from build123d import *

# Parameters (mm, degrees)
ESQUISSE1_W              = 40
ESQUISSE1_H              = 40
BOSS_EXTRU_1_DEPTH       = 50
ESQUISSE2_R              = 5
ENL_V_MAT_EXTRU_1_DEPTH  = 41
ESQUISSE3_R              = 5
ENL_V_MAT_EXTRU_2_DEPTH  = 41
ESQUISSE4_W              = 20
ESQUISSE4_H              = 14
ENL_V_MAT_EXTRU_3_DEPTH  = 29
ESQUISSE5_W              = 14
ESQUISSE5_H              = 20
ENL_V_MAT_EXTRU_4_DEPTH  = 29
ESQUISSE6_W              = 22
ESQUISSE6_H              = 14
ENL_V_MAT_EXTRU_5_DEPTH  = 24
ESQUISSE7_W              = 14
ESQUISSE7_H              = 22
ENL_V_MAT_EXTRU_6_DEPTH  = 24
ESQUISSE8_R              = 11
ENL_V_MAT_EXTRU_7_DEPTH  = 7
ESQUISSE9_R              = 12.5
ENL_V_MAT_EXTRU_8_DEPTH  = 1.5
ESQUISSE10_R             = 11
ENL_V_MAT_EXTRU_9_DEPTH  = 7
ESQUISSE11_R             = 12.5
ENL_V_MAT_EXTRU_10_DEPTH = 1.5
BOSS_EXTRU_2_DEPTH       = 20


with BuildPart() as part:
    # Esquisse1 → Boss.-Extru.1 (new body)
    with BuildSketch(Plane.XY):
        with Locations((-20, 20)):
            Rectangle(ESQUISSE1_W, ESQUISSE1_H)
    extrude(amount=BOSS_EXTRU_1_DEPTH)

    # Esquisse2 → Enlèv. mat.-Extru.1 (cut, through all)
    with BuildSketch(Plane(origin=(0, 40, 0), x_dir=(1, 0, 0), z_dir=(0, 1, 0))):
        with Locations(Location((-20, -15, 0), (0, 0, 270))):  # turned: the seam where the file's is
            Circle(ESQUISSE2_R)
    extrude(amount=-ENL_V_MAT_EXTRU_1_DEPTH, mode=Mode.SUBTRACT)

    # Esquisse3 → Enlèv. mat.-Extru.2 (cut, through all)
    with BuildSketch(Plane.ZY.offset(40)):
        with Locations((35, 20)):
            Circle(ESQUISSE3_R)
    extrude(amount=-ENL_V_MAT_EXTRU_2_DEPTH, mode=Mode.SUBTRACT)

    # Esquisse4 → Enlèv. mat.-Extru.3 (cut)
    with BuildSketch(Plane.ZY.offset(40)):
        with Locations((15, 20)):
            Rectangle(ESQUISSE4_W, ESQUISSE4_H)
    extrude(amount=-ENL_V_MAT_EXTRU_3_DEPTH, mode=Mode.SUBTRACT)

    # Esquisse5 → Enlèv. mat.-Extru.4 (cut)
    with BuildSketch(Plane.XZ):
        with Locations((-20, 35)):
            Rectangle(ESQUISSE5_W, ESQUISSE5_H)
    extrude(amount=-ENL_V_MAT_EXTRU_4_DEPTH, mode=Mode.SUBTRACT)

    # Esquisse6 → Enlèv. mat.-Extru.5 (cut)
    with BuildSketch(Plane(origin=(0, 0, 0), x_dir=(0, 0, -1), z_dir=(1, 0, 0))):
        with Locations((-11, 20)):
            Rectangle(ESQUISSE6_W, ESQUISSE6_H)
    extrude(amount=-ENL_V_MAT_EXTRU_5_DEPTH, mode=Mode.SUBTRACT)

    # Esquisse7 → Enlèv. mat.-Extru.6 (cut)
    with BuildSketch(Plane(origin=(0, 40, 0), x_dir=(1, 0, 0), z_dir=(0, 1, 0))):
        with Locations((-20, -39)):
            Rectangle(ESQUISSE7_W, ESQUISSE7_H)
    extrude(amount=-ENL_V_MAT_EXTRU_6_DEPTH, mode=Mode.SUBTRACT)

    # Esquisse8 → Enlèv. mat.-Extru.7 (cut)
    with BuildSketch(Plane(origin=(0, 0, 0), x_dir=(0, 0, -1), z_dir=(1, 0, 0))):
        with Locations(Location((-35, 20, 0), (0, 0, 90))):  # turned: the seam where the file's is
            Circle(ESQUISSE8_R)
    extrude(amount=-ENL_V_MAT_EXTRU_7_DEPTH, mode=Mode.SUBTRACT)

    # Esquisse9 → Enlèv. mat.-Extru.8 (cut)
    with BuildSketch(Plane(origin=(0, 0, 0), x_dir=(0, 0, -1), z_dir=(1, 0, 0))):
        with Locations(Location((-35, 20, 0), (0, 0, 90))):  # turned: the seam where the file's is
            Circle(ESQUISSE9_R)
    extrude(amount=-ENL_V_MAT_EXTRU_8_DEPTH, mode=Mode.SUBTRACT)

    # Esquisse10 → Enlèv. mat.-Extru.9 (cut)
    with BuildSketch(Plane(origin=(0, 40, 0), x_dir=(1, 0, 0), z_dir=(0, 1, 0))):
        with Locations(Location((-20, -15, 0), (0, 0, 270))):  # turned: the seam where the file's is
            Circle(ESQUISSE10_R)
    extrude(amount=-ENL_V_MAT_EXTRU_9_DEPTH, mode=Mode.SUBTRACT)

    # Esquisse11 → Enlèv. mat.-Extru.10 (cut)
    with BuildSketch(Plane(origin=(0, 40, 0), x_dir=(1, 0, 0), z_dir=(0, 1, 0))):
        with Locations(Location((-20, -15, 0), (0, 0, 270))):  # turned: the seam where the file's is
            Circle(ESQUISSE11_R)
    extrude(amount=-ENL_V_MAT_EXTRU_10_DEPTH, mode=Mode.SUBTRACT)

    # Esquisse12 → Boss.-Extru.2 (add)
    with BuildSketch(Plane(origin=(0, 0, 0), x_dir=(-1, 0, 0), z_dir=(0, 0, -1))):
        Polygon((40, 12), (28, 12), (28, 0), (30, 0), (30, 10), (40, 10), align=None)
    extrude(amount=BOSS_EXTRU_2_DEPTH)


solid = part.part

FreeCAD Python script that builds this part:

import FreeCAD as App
import Part
import Sketcher

V = App.Vector
Q = App.Units.Quantity


def add_polygon(sketch, points):
    """Adds a closed chain of lines whose ends are joined by coincident constraints."""
    first, n = sketch.GeometryCount, len(points)
    for a, b in zip(points, points[1:] + points[:1]):
        sketch.addGeometry(Part.LineSegment(App.Vector(*a, 0), App.Vector(*b, 0)), False)
    for i in range(n):
        sketch.addConstraint(Sketcher.Constraint("Coincident", first + i, 2, first + (i + 1) % n, 1))

doc = App.newDocument("Part")
body = doc.addObject("PartDesign::Body", "Body")

sketch1 = body.newObject("Sketcher::SketchObject", "Sketch")
sketch1.AttachmentSupport = (doc.getObject("XY_Plane"), [""])
sketch1.MapMode = "FlatFace"
add_polygon(sketch1, [(-40, 40), (-40, 0), (0, 0), (0, 40)])
sketch1.addConstraint([
    Sketcher.Constraint("Vertical", 0),
    Sketcher.Constraint("Horizontal", 1),
    Sketcher.Constraint("Vertical", 2),
    Sketcher.Constraint("Horizontal", 3),
    Sketcher.Constraint("Coincident", 1, 2, -1, 1),
    Sketcher.Constraint("Equal", 3, 0),
    Sketcher.Constraint("DistanceX", 1, 1, 1, 2, Q("40 mm")),
])
pad1 = body.newObject("PartDesign::Pad", "Pad")
pad1.Profile = sketch1
pad1.Length = 50

sketch2 = body.newObject("Sketcher::SketchObject", "Sketch001")
sketch2.AttachmentSupport = (doc.getObject("XZ_Plane"), [""])
sketch2.MapMode = "FlatFace"
sketch2.AttachmentOffset = App.Placement(V(0, 0, -40), App.Rotation())
sketch2.addGeometry(Part.Circle(V(-20, 15, 0), V(0, 0, 1), 5), False)
sketch2.addConstraint([
    Sketcher.Constraint("Diameter", 0, Q("10 mm")),
    Sketcher.Constraint("DistanceX", 0, 3, -1, 1, Q("20 mm")),
    Sketcher.Constraint("DistanceY", -1, 1, 0, 3, Q("15 mm")),
])
pocket1 = body.newObject("PartDesign::Pocket", "Pocket")
pocket1.Profile = sketch2
pocket1.Type = "ThroughAll"
pocket1.Reversed = True

sketch3 = body.newObject("Sketcher::SketchObject", "Sketch002")
sketch3.AttachmentSupport = (doc.getObject("YZ_Plane"), [""])
sketch3.MapMode = "FlatFace"
sketch3.AttachmentOffset = App.Placement(V(0, 0, -40), App.Rotation())
sketch3.addGeometry(Part.Circle(V(20, 35, 0), V(0, 0, 1), 5), False)
sketch3.addConstraint([
    Sketcher.Constraint("Diameter", 0, Q("10 mm")),
    Sketcher.Constraint("DistanceX", -1, 1, 0, 3, Q("20 mm")),
    Sketcher.Constraint("DistanceY", -1, 1, 0, 3, Q("35 mm")),
])
pocket2 = body.newObject("PartDesign::Pocket", "Pocket001")
pocket2.Profile = sketch3
pocket2.Type = "ThroughAll"
pocket2.Reversed = True

sketch4 = body.newObject("Sketcher::SketchObject", "Sketch003")
sketch4.AttachmentSupport = (doc.getObject("YZ_Plane"), [""])
sketch4.MapMode = "FlatFace"
sketch4.AttachmentOffset = App.Placement(V(0, 0, -40), App.Rotation())
add_polygon(sketch4, [(27, 5), (13, 5), (13, 25), (27, 25)])
sketch4.addConstraint([
    Sketcher.Constraint("Horizontal", 0),
    Sketcher.Constraint("Vertical", 1),
    Sketcher.Constraint("Horizontal", 2),
    Sketcher.Constraint("Vertical", 3),
    Sketcher.Constraint("DistanceX", 0, 2, 0, 1, Q("14 mm")),
    Sketcher.Constraint("DistanceY", 1, 1, 1, 2, Q("20 mm")),
    Sketcher.Constraint("DistanceX", -1, 1, 0, 2, Q("13 mm")),
    Sketcher.Constraint("DistanceY", -1, 1, 0, 2, Q("5 mm")),
])
pocket3 = body.newObject("PartDesign::Pocket", "Pocket002")
pocket3.Profile = sketch4
pocket3.Length = 29
pocket3.Reversed = True

sketch5 = body.newObject("Sketcher::SketchObject", "Sketch004")
sketch5.AttachmentSupport = (doc.getObject("XZ_Plane"), [""])
sketch5.MapMode = "FlatFace"
add_polygon(sketch5, [(-27, 45), (-27, 25), (-13, 25), (-13, 45)])
sketch5.addConstraint([
    Sketcher.Constraint("Vertical", 0),
    Sketcher.Constraint("Horizontal", 1),
    Sketcher.Constraint("Vertical", 2),
    Sketcher.Constraint("Horizontal", 3),
    Sketcher.Constraint("DistanceX", 1, 1, 1, 2, Q("14 mm")),
    Sketcher.Constraint("DistanceY", 0, 2, 0, 1, Q("20 mm")),
    Sketcher.Constraint("DistanceX", 0, 2, -1, 1, Q("27 mm")),
    Sketcher.Constraint("DistanceY", -1, 1, 0, 2, Q("25 mm")),
])
pocket4 = body.newObject("PartDesign::Pocket", "Pocket003")
pocket4.Profile = sketch5
pocket4.Length = 29

sketch6 = body.newObject("Sketcher::SketchObject", "Sketch005")
sketch6.AttachmentSupport = (doc.getObject("YZ_Plane"), [""])
sketch6.MapMode = "FlatFace"
add_polygon(sketch6, [(27, 22), (13, 22), (13, 0), (27, 0)])
sketch6.addConstraint([
    Sketcher.Constraint("Horizontal", 0),
    Sketcher.Constraint("Vertical", 1),
    Sketcher.Constraint("Horizontal", 2),
    Sketcher.Constraint("Vertical", 3),
    Sketcher.Constraint("PointOnObject", 1, 2, -1),
    Sketcher.Constraint("DistanceX", 0, 2, 0, 1, Q("14 mm")),
    Sketcher.Constraint("DistanceY", 1, 2, 1, 1, Q("22 mm")),
    Sketcher.Constraint("DistanceX", -1, 1, 0, 2, Q("13 mm")),
])
pocket5 = body.newObject("PartDesign::Pocket", "Pocket004")
pocket5.Profile = sketch6
pocket5.Length = 24

sketch7 = body.newObject("Sketcher::SketchObject", "Sketch006")
sketch7.AttachmentSupport = (doc.getObject("XZ_Plane"), [""])
sketch7.MapMode = "FlatFace"
sketch7.AttachmentOffset = App.Placement(V(0, 0, -40), App.Rotation())
add_polygon(sketch7, [(-27, 28), (-27, 50), (-13, 50), (-13, 28)])
sketch7.addConstraint([
    Sketcher.Constraint("Vertical", 0),
    Sketcher.Constraint("Horizontal", 1),
    Sketcher.Constraint("Vertical", 2),
    Sketcher.Constraint("Horizontal", 3),
    Sketcher.Constraint("DistanceX", 1, 1, 1, 2, Q("14 mm")),
    Sketcher.Constraint("DistanceY", 0, 1, 0, 2, Q("22 mm")),
    Sketcher.Constraint("DistanceX", 0, 2, -1, 1, Q("27 mm")),
    Sketcher.Constraint("DistanceY", -1, 1, 0, 2, Q("50 mm")),
])
pocket6 = body.newObject("PartDesign::Pocket", "Pocket005")
pocket6.Profile = sketch7
pocket6.Length = 24
pocket6.Reversed = True

sketch8 = body.newObject("Sketcher::SketchObject", "Sketch007")
sketch8.AttachmentSupport = (doc.getObject("YZ_Plane"), [""])
sketch8.MapMode = "FlatFace"
sketch8.addGeometry(Part.Circle(V(20, 35, 0), V(0, 0, 1), 11), False)
sketch8.addConstraint([
    Sketcher.Constraint("Diameter", 0, Q("22 mm")),
    Sketcher.Constraint("DistanceX", -1, 1, 0, 3, Q("20 mm")),
    Sketcher.Constraint("DistanceY", -1, 1, 0, 3, Q("35 mm")),
])
pocket7 = body.newObject("PartDesign::Pocket", "Pocket006")
pocket7.Profile = sketch8
pocket7.Length = 7

sketch9 = body.newObject("Sketcher::SketchObject", "Sketch008")
sketch9.AttachmentSupport = (doc.getObject("YZ_Plane"), [""])
sketch9.MapMode = "FlatFace"
sketch9.addGeometry(Part.Circle(V(20, 35, 0), V(0, 0, 1), 12.5), False)
sketch9.addConstraint([
    Sketcher.Constraint("Diameter", 0, Q("25 mm")),
    Sketcher.Constraint("DistanceX", -1, 1, 0, 3, Q("20 mm")),
    Sketcher.Constraint("DistanceY", -1, 1, 0, 3, Q("35 mm")),
])
pocket8 = body.newObject("PartDesign::Pocket", "Pocket007")
pocket8.Profile = sketch9
pocket8.Length = 1.5

sketch10 = body.newObject("Sketcher::SketchObject", "Sketch009")
sketch10.AttachmentSupport = (doc.getObject("XZ_Plane"), [""])
sketch10.MapMode = "FlatFace"
sketch10.AttachmentOffset = App.Placement(V(0, 0, -40), App.Rotation())
sketch10.addGeometry(Part.Circle(V(-20, 15, 0), V(0, 0, 1), 11), False)
sketch10.addConstraint([
    Sketcher.Constraint("Diameter", 0, Q("22 mm")),
    Sketcher.Constraint("DistanceX", 0, 3, -1, 1, Q("20 mm")),
    Sketcher.Constraint("DistanceY", -1, 1, 0, 3, Q("15 mm")),
])
pocket9 = body.newObject("PartDesign::Pocket", "Pocket008")
pocket9.Profile = sketch10
pocket9.Length = 7
pocket9.Reversed = True

sketch11 = body.newObject("Sketcher::SketchObject", "Sketch010")
sketch11.AttachmentSupport = (doc.getObject("XZ_Plane"), [""])
sketch11.MapMode = "FlatFace"
sketch11.AttachmentOffset = App.Placement(V(0, 0, -40), App.Rotation())
sketch11.addGeometry(Part.Circle(V(-20, 15, 0), V(0, 0, 1), 12.5), False)
sketch11.addConstraint([
    Sketcher.Constraint("Diameter", 0, Q("25 mm")),
    Sketcher.Constraint("DistanceX", 0, 3, -1, 1, Q("20 mm")),
    Sketcher.Constraint("DistanceY", -1, 1, 0, 3, Q("15 mm")),
])
pocket10 = body.newObject("PartDesign::Pocket", "Pocket009")
pocket10.Profile = sketch11
pocket10.Length = 1.5
pocket10.Reversed = True

sketch12 = body.newObject("Sketcher::SketchObject", "Sketch011")
sketch12.AttachmentSupport = (doc.getObject("XY_Plane"), [""])
sketch12.MapMode = "FlatFace"
add_polygon(sketch12, [(-40, 12), (-28, 12), (-28, 0), (-30, 0), (-30, 10), (-40, 10)])
sketch12.addConstraint([
    Sketcher.Constraint("Horizontal", 0),
    Sketcher.Constraint("Vertical", 1),
    Sketcher.Constraint("Horizontal", 2),
    Sketcher.Constraint("Vertical", 3),
    Sketcher.Constraint("Horizontal", 4),
    Sketcher.Constraint("Vertical", 5),
    Sketcher.Constraint("PointOnObject", 1, 2, -1),
    Sketcher.Constraint("Equal", 0, 1),
    Sketcher.Constraint("Equal", 4, 3),
    Sketcher.Constraint("DistanceX", 0, 1, 0, 2, Q("12 mm")),
    Sketcher.Constraint("DistanceX", 2, 2, 2, 1, Q("2 mm")),
    Sketcher.Constraint("DistanceX", 0, 2, -1, 1, Q("28 mm")),
])
pad2 = body.newObject("PartDesign::Pad", "Pad001")
pad2.Profile = sketch12
pad2.Length = 20
pad2.Reversed = True

doc.recompute()
